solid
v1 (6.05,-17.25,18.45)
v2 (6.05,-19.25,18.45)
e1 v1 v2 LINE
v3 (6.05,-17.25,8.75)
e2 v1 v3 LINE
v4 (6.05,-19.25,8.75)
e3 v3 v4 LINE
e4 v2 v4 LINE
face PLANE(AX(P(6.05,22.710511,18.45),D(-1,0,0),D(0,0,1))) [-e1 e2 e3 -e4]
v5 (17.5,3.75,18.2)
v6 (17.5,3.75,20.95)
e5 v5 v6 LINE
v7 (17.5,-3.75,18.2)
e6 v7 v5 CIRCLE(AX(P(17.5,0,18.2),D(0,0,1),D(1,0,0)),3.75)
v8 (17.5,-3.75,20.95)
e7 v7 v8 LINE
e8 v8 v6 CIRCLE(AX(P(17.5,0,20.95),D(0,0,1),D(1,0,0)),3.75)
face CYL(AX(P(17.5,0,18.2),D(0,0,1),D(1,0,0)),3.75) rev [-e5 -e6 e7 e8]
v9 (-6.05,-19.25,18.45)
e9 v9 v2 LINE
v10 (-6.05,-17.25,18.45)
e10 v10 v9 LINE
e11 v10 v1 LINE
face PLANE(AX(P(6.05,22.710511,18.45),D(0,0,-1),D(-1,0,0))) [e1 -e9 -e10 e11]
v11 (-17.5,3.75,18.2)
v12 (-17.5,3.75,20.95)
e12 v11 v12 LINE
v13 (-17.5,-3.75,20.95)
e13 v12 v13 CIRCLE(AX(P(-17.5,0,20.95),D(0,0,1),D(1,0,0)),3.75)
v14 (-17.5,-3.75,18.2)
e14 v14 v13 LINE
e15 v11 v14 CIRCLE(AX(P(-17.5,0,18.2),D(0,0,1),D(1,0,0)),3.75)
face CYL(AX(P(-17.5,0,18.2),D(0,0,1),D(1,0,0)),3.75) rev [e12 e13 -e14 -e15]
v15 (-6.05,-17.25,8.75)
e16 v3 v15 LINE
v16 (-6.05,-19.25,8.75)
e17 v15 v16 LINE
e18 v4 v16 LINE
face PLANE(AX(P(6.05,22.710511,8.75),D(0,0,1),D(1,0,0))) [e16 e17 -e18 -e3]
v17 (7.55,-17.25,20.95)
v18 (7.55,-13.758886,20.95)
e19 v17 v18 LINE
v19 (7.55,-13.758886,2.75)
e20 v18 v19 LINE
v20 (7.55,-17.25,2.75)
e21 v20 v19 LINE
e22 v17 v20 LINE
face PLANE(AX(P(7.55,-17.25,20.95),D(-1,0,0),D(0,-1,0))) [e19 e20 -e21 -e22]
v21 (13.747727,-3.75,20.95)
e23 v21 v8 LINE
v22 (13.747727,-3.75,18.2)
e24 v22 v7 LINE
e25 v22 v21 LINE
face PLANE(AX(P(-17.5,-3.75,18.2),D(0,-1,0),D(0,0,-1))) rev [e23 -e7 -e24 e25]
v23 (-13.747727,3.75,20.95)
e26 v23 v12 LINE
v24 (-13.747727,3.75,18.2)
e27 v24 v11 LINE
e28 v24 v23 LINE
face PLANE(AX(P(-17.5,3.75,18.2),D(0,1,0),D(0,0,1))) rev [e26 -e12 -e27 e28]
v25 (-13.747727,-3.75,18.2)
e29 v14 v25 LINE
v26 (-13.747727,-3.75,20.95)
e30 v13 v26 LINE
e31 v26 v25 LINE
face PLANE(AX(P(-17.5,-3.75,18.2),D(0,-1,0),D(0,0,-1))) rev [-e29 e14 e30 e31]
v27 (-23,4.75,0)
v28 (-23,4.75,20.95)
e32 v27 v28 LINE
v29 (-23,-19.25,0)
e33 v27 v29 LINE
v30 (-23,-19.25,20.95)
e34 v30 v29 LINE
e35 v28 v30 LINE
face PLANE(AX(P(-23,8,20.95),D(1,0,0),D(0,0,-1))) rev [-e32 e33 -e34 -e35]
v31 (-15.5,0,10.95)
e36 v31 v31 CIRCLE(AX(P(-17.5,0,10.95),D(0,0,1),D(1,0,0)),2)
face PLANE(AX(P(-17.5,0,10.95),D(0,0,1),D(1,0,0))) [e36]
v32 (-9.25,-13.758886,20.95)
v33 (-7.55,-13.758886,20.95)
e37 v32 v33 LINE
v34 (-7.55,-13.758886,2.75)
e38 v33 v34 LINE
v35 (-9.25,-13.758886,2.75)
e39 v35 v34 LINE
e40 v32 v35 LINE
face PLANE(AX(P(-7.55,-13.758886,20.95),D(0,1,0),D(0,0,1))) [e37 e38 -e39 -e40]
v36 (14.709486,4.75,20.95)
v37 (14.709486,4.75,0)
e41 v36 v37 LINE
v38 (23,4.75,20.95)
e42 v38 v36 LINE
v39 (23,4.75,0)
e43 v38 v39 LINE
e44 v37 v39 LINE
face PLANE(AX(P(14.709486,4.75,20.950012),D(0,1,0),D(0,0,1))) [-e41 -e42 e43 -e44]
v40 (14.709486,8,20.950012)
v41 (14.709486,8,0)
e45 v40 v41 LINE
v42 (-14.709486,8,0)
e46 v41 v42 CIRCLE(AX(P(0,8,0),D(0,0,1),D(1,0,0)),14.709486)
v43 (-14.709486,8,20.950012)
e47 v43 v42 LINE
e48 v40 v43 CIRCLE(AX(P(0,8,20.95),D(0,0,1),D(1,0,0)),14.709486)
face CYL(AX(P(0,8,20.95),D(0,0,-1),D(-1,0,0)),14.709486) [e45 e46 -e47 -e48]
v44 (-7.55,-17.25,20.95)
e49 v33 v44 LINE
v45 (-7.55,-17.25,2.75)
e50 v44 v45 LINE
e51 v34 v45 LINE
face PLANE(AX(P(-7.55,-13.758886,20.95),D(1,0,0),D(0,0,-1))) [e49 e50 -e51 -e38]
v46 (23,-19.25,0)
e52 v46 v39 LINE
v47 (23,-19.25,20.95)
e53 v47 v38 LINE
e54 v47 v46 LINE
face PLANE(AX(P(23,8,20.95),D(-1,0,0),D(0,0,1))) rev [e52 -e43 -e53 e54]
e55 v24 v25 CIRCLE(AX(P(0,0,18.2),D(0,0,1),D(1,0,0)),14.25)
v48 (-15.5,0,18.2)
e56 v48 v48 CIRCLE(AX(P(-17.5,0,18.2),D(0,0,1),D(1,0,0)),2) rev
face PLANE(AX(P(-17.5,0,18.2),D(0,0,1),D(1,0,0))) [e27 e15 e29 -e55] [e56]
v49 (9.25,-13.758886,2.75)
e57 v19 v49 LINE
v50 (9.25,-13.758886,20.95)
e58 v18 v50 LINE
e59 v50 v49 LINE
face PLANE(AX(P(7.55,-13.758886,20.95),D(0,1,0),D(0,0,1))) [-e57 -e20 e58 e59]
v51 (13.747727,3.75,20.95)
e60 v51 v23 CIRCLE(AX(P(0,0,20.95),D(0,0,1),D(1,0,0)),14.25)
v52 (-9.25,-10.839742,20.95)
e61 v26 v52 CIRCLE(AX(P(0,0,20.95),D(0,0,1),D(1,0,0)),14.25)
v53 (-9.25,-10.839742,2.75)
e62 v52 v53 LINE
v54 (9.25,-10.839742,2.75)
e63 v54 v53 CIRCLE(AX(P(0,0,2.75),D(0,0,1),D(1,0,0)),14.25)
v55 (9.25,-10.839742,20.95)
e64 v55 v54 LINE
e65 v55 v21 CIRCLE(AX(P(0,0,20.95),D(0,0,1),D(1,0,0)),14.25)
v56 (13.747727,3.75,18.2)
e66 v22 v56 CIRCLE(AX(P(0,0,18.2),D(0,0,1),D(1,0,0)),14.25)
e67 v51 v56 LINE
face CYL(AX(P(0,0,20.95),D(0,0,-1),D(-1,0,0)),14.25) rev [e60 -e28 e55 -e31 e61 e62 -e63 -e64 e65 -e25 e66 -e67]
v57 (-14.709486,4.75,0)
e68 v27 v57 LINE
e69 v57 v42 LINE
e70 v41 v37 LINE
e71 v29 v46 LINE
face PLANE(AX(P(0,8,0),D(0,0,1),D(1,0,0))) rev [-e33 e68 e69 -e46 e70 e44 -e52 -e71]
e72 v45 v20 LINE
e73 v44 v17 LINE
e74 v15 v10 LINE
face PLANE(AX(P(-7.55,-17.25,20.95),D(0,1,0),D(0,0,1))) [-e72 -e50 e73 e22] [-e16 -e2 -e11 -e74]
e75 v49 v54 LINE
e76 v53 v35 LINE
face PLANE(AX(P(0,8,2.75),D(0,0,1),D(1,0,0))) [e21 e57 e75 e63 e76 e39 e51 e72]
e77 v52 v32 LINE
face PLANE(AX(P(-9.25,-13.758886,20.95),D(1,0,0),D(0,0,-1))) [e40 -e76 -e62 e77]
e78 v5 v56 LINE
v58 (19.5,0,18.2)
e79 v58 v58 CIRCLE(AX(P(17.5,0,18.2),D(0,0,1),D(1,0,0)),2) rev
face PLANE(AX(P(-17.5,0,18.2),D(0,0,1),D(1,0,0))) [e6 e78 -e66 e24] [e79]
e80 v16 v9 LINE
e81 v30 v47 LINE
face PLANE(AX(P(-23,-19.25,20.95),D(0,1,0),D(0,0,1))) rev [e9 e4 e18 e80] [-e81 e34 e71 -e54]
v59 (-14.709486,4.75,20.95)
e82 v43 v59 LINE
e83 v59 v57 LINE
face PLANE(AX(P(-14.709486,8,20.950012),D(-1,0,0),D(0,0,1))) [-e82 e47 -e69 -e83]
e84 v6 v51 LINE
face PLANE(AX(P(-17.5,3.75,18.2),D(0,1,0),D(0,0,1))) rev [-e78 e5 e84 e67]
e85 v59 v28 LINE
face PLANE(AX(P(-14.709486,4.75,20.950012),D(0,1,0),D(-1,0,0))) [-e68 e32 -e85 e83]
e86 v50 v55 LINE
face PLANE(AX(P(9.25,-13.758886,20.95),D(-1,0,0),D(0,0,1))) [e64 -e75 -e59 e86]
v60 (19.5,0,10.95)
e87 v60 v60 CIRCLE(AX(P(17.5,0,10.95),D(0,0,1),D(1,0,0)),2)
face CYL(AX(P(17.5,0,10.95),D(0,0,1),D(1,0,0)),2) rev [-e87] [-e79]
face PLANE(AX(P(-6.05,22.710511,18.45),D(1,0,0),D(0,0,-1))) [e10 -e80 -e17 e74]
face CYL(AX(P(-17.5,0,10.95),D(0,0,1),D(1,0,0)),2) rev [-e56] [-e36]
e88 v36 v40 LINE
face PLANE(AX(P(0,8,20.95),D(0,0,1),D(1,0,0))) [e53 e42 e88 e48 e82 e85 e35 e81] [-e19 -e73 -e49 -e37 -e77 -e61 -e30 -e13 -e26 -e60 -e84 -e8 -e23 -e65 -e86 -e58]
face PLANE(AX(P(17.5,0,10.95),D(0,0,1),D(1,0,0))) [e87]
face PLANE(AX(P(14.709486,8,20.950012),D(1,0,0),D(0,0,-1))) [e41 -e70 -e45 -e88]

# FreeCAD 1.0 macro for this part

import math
import FreeCAD as App
import Part
import Sketcher
from FreeCAD import Vector
Q = App.Units.Quantity


def add_polygon(sketch, points):
    """Adds a closed chain of lines whose ends are joined by coincident constraints."""
    first, n = sketch.GeometryCount, len(points)
    for a, b in zip(points, points[1:] + points[:1]):
        sketch.addGeometry(Part.LineSegment(App.Vector(*a, 0), App.Vector(*b, 0)), False)
    for i in range(n):
        sketch.addConstraint(Sketcher.Constraint("Coincident", first + i, 2, first + (i + 1) % n, 1))

doc = App.newDocument("Part")
body = doc.addObject("PartDesign::Body", "Body")

sketch1 = body.newObject("Sketcher::SketchObject", "Sketch")
sketch1.AttachmentSupport = (doc.getObject("XY_Plane"), [""])
sketch1.MapMode = "FlatFace"
sketch1.addGeometry([
    Part.LineSegment(Vector(-14.7, 8, 0), Vector(-23, 8, 0)),
    Part.LineSegment(Vector(-23, 8, 0), Vector(-23, -19.2, 0)),
    Part.LineSegment(Vector(-23, -19.2, 0), Vector(23, -19.2, 0)),
    Part.LineSegment(Vector(23, -19.2, 0), Vector(23, 8, 0)),
    Part.LineSegment(Vector(23, 8, 0), Vector(14.7, 8, 0)),
    Part.ArcOfCircle(Part.Circle(Vector(0, 8, 0), Vector(0, 0, 1), 14.7), math.radians(0), math.radians(180)),
    Part.LineSegment(Vector(-7.5, -17.2, 0), Vector(-7.5, -13.8, 0)),
    Part.LineSegment(Vector(-7.5, -13.8, 0), Vector(-9.2, -13.8, 0)),
    Part.LineSegment(Vector(-9.2, -13.8, 0), Vector(-9.2, -10.8, 0)),
    Part.ArcOfCircle(Part.Circle(Vector(0, 0, 0), Vector(0, 0, 1), 14.2), math.radians(-50), math.radians(230)),
    Part.LineSegment(Vector(9.2, -10.8, 0), Vector(9.2, -13.8, 0)),
    Part.LineSegment(Vector(9.2, -13.8, 0), Vector(7.5, -13.8, 0)),
    Part.LineSegment(Vector(7.5, -13.8, 0), Vector(7.5, -17.2, 0)),
    Part.LineSegment(Vector(7.5, -17.2, 0), Vector(-7.5, -17.2, 0)),
], False)
sketch1.addConstraint([
    Sketcher.Constraint("Coincident", 0, 2, 1, 1),
    Sketcher.Constraint("Coincident", 1, 2, 2, 1),
    Sketcher.Constraint("Coincident", 2, 2, 3, 1),
    Sketcher.Constraint("Coincident", 3, 2, 4, 1),
    Sketcher.Constraint("Coincident", 4, 2, 5, 1),
    Sketcher.Constraint("Coincident", 5, 2, 0, 1),
    Sketcher.Constraint("Coincident", 6, 2, 7, 1),
    Sketcher.Constraint("Coincident", 7, 2, 8, 1),
    Sketcher.Constraint("Coincident", 8, 2, 9, 2),
    Sketcher.Constraint("Coincident", 9, 1, 10, 1),
    Sketcher.Constraint("Coincident", 10, 2, 11, 1),
    Sketcher.Constraint("Coincident", 11, 2, 12, 1),
    Sketcher.Constraint("Coincident", 12, 2, 13, 1),
    Sketcher.Constraint("Coincident", 13, 2, 6, 1),
    Sketcher.Constraint("Horizontal", 0),
    Sketcher.Constraint("Vertical", 1),
    Sketcher.Constraint("Horizontal", 2),
    Sketcher.Constraint("Vertical", 3),
    Sketcher.Constraint("Horizontal", 4),
    Sketcher.Constraint("Vertical", 6),
    Sketcher.Constraint("Horizontal", 7),
    Sketcher.Constraint("Vertical", 8),
    Sketcher.Constraint("Vertical", 10),
    Sketcher.Constraint("Horizontal", 11),
    Sketcher.Constraint("Vertical", 12),
    Sketcher.Constraint("Horizontal", 13),
    Sketcher.Constraint("Coincident", 9, 3, -1, 1),
    Sketcher.Constraint("Symmetric", 0, 2, 3, 2, -2),
    Sketcher.Constraint("Symmetric", 7, 2, 10, 2, -2),
    Sketcher.Constraint("PointOnObject", 5, 3, -2),
    Sketcher.Constraint("Horizontal", 5, 3, 0, 2),
    Sketcher.Constraint("Equal", 7, 11),
    Sketcher.Constraint("DistanceX", 2, 1, 2, 2, Q("46 mm")),
    Sketcher.Constraint("Radius", 9, Q("14.25 mm")),
    Sketcher.Constraint("DistanceX", 7, 2, 7, 1, Q("1.7 mm")),
    Sketcher.Constraint("DistanceX", 13, 2, 13, 1, Q("15.1 mm")),
    Sketcher.Constraint("DistanceY", -1, 1, 5, 3, Q("8 mm")),
    Sketcher.Constraint("DistanceY", 2, 2, 12, 2, Q("2 mm")),
    Sketcher.Constraint("DistanceY", 1, 2, 1, 1, Q("27.25 mm")),
    Sketcher.Constraint("Radius", 5, Q("14.709486 mm")),
    Sketcher.Constraint("DistanceY", 6, 1, 6, 2, Q("3.491114 mm")),
])
pad1 = body.newObject("PartDesign::Pad", "Pad")
pad1.Profile = sketch1
pad1.Length = 20.95

sketch2 = body.newObject("Sketcher::SketchObject", "Sketch001")
sketch2.AttachmentSupport = (doc.getObject("XY_Plane"), [""])
sketch2.MapMode = "FlatFace"
sketch2.addGeometry([
    Part.LineSegment(Vector(-15, 8, 0), Vector(-23, 8, 0)),
    Part.LineSegment(Vector(-23, 8, 0), Vector(-23, -19, 0)),
    Part.LineSegment(Vector(-23, -19, 0), Vector(23, -19, 0)),
    Part.LineSegment(Vector(23, -19, 0), Vector(23, 8, 0)),
    Part.LineSegment(Vector(23, 8, 0), Vector(15, 8, 0)),
    Part.ArcOfCircle(Part.Circle(Vector(0, 8, 0), Vector(0, 0, 1), 15), math.radians(0), math.radians(180)),
], False)
sketch2.addConstraint([
    Sketcher.Constraint("Coincident", 0, 2, 1, 1),
    Sketcher.Constraint("Coincident", 1, 2, 2, 1),
    Sketcher.Constraint("Coincident", 2, 2, 3, 1),
    Sketcher.Constraint("Coincident", 3, 2, 4, 1),
    Sketcher.Constraint("Coincident", 4, 2, 5, 1),
    Sketcher.Constraint("Coincident", 5, 2, 0, 1),
    Sketcher.Constraint("Horizontal", 0),
    Sketcher.Constraint("Vertical", 1),
    Sketcher.Constraint("Horizontal", 2),
    Sketcher.Constraint("Vertical", 3),
    Sketcher.Constraint("Horizontal", 4),
    Sketcher.Constraint("Symmetric", 0, 2, 3, 2, -2),
    Sketcher.Constraint("PointOnObject", 5, 3, -2),
    Sketcher.Constraint("Horizontal", 5, 3, 0, 2),
    Sketcher.Constraint("DistanceX", 2, 1, 2, 2, Q("46 mm")),
    Sketcher.Constraint("DistanceY", -1, 1, 5, 3, Q("8 mm")),
    Sketcher.Constraint("DistanceY", 1, 2, 1, 1, Q("27.25 mm")),
    Sketcher.Constraint("Radius", 5, Q("14.709486 mm")),
])
pad2 = body.newObject("PartDesign::Pad", "Pad001")
pad2.Profile = sketch2
pad2.Length = 2.75

sketch3 = body.newObject("Sketcher::SketchObject", "Sketch002")
sketch3.AttachmentSupport = (doc.getObject("XY_Plane"), [""])
sketch3.MapMode = "FlatFace"
sketch3.AttachmentOffset = App.Placement(Vector(0, 0, 20.95), App.Rotation())
sketch3.addGeometry([
    Part.Circle(Vector(-17.5, 0, 0), Vector(0, 0, 1), 2),
    Part.Circle(Vector(17.5, 0, 0), Vector(0, 0, 1), 2),
], False)
sketch3.addConstraint([
    Sketcher.Constraint("Equal", 0, 1),
    Sketcher.Constraint("Symmetric", 0, 3, 1, 3, -1, 1),
    Sketcher.Constraint("PointOnObject", 0, 3, -1),
    Sketcher.Constraint("Diameter", 0, Q("4 mm")),
    Sketcher.Constraint("DistanceX", 0, 3, 1, 3, Q("35 mm")),
])
pocket1 = body.newObject("PartDesign::Pocket", "Pocket")
pocket1.Profile = sketch3
pocket1.Length = 10

sketch4 = body.newObject("Sketcher::SketchObject", "Sketch003")
sketch4.AttachmentSupport = (doc.getObject("XY_Plane"), [""])
sketch4.MapMode = "FlatFace"
sketch4.AttachmentOffset = App.Placement(Vector(0, 0, 20.95), App.Rotation())
sketch4.addGeometry([
    Part.LineSegment(Vector(17.5, 3.8, 0), Vector(-17.5, 3.8, 0)),
    Part.ArcOfCircle(Part.Circle(Vector(-17.5, 0, 0), Vector(0, 0, 1), 3.8), math.radians(90), math.radians(270)),
    Part.LineSegment(Vector(-17.5, -3.8, 0), Vector(17.5, -3.8, 0)),
    Part.ArcOfCircle(Part.Circle(Vector(17.5, 0, 0), Vector(0, 0, 1), 3.8), math.radians(-90), math.radians(90)),
], False)
sketch4.addConstraint([
    Sketcher.Constraint("Tangent", 0, 2, 1, 1),
    Sketcher.Constraint("Tangent", 1, 2, 2, 1),
    Sketcher.Constraint("Tangent", 2, 2, 3, 1),
    Sketcher.Constraint("Tangent", 3, 2, 0, 1),
    Sketcher.Constraint("Horizontal", 0),
    Sketcher.Constraint("Horizontal", 2),
    Sketcher.Constraint("Symmetric", 1, 3, 3, 3, -1, 1),
    Sketcher.Constraint("DistanceX", 0, 2, 0, 1, Q("35 mm")),
    Sketcher.Constraint("Radius", 1, Q("3.75 mm")),
])
pocket2 = body.newObject("PartDesign::Pocket", "Pocket001")
pocket2.Profile = sketch4
pocket2.Length = 2.75

sketch5 = body.newObject("Sketcher::SketchObject", "Sketch004")
sketch5.AttachmentSupport = (doc.getObject("XY_Plane"), [""])
sketch5.MapMode = "FlatFace"
sketch5.AttachmentOffset = App.Placement(Vector(0, 0, 20.95), App.Rotation())
add_polygon(sketch5, [(-23, 8), (-23, 4.8), (-14.7, 4.8), (-14.7, 8)])
add_polygon(sketch5, [(14.7, 8), (14.7, 4.8), (23, 4.8), (23, 8)])
sketch5.addConstraint([
    Sketcher.Constraint("Vertical", 0),
    Sketcher.Constraint("Horizontal", 1),
    Sketcher.Constraint("Vertical", 2),
    Sketcher.Constraint("Horizontal", 3),
    Sketcher.Constraint("Vertical", 4),
    Sketcher.Constraint("Horizontal", 5),
    Sketcher.Constraint("Vertical", 6),
    Sketcher.Constraint("Horizontal", 7),
    Sketcher.Constraint("Symmetric", 1, 2, 4, 2, -2),
    Sketcher.Constraint("Symmetric", 3, 2, 6, 2, -2),
    Sketcher.Constraint("DistanceX", 0, 2, -1, 1, Q("23 mm")),
    Sketcher.Constraint("DistanceY", -1, 1, 2, 2, Q("8 mm")),
    Sketcher.Constraint("DistanceY", 0, 2, 0, 1, Q("3.25 mm")),
    Sketcher.Constraint("DistanceX", 1, 1, 1, 2, Q("8.290514 mm")),
])
pocket3 = body.newObject("PartDesign::Pocket", "Pocket002")
pocket3.Profile = sketch5
pocket3.Type = "ThroughAll"
pocket3.Midplane = True

sketch6 = body.newObject("Sketcher::SketchObject", "Sketch005")
sketch6.AttachmentSupport = (doc.getObject("XZ_Plane"), [""])
sketch6.MapMode = "FlatFace"
sketch6.AttachmentOffset = App.Placement(Vector(0, 0, 19.25), App.Rotation())
add_polygon(sketch6, [(6, 18), (6, 9), (-6, 9), (-6, 18)])
sketch6.addConstraint([
    Sketcher.Constraint("Vertical", 0),
    Sketcher.Constraint("Horizontal", 1),
    Sketcher.Constraint("Vertical", 2),
    Sketcher.Constraint("Horizontal", 3),
    Sketcher.Constraint("DistanceX", 1, 2, 1, 1, Q("12.1 mm")),
    Sketcher.Constraint("DistanceY", 0, 2, 0, 1, Q("9.7 mm")),
    Sketcher.Constraint("DistanceX", -1, 1, 0, 2, Q("6.05 mm")),
    Sketcher.Constraint("DistanceY", -1, 1, 0, 2, Q("8.75 mm")),
])
pocket4 = body.newObject("PartDesign::Pocket", "Pocket003")
pocket4.Profile = sketch6
pocket4.Type = "UpToFirst"

doc.recompute()
